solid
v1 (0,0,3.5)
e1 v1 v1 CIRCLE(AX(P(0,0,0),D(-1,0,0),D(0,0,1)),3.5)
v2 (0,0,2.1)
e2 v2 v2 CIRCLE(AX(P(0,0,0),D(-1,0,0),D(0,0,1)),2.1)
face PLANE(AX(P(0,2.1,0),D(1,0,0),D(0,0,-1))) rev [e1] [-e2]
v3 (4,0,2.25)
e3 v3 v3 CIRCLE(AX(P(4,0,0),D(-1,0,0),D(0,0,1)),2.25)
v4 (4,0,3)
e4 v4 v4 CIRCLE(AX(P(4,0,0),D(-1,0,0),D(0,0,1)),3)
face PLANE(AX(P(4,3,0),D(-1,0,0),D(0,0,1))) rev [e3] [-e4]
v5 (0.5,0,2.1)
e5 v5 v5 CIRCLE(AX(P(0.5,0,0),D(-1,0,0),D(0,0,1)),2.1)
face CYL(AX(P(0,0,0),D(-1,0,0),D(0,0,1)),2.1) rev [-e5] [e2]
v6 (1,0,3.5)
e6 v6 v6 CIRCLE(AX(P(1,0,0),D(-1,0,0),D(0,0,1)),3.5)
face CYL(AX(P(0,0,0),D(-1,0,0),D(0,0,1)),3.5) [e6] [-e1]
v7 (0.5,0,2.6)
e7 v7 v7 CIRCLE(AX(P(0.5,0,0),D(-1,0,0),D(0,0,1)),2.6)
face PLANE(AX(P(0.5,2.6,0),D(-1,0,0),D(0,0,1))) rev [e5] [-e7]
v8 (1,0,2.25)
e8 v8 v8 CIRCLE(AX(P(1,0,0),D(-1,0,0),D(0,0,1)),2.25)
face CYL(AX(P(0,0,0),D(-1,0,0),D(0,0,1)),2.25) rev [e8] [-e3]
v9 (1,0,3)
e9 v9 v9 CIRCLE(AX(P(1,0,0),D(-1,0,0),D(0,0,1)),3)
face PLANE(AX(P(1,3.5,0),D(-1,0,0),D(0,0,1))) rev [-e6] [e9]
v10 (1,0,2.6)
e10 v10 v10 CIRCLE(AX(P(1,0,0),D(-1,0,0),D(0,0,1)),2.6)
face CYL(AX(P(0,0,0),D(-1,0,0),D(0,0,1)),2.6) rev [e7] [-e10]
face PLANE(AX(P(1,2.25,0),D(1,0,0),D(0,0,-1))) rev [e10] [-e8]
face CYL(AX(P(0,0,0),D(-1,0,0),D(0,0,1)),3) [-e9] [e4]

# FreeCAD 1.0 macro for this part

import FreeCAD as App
import Part
import Sketcher

V = App.Vector


def add_polygon(sketch, points):
    """Adds a closed chain of lines whose ends are joined by coincident constraints."""
    first, n = sketch.GeometryCount, len(points)
    for a, b in zip(points, points[1:] + points[:1]):
        sketch.addGeometry(Part.LineSegment(App.Vector(*a, 0), App.Vector(*b, 0)), False)
    for i in range(n):
        sketch.addConstraint(Sketcher.Constraint("Coincident", first + i, 2, first + (i + 1) % n, 1))

doc = App.newDocument("Part")
body = doc.addObject("PartDesign::Body", "Body")

# Sketch on XY plane
sketch1 = body.newObject("Sketcher::SketchObject", "Sketch")
sketch1.AttachmentSupport = (doc.getObject("XY_Plane"), [""])
sketch1.MapMode = "FlatFace"
add_polygon(sketch1, [(0, 3.5), (0, 2.1), (0.5, 2.1), (0.5, 2.6), (1, 2.6), (1, 2.25), (4, 2.25), (4, 3), (1, 3), (1, 3.5)])  # lines 0-9
sketch1.addConstraint([
    Sketcher.Constraint("Vertical", 0),
    Sketcher.Constraint("Horizontal", 1),
    Sketcher.Constraint("Vertical", 2),
    Sketcher.Constraint("Horizontal", 3),
    Sketcher.Constraint("Vertical", 4),
    Sketcher.Constraint("Horizontal", 5),
    Sketcher.Constraint("Vertical", 6),
    Sketcher.Constraint("Horizontal", 7),
    Sketcher.Constraint("Vertical", 8),
    Sketcher.Constraint("Horizontal", 9),
    Sketcher.Constraint("PointOnObject", 0, 2, -2),
    Sketcher.Constraint("Vertical", 4, 2, 7, 2),
    Sketcher.Constraint("Equal", 1, 3),
    Sketcher.Constraint("Equal", 3, 2),
    Sketcher.Constraint("Equal", 2, 8),
    Sketcher.Constraint("DistanceX", 5, 1, 5, 2, 3.0),
    Sketcher.Constraint("DistanceX", 9, 2, 9, 1, 1.0),
    Sketcher.Constraint("DistanceY", 0, 2, 0, 1, 1.4),
    Sketcher.Constraint("DistanceY", -1, 1, 6, 2, 3.0),
    Sketcher.Constraint("DistanceY", 4, 2, 4, 1, 0.35),
])
revolution = body.newObject("PartDesign::Revolution", "Revolution")
revolution.Profile = sketch1
revolution.ReferenceAxis = (sketch1, ["H_Axis"])
revolution.Angle = 360

doc.recompute()
